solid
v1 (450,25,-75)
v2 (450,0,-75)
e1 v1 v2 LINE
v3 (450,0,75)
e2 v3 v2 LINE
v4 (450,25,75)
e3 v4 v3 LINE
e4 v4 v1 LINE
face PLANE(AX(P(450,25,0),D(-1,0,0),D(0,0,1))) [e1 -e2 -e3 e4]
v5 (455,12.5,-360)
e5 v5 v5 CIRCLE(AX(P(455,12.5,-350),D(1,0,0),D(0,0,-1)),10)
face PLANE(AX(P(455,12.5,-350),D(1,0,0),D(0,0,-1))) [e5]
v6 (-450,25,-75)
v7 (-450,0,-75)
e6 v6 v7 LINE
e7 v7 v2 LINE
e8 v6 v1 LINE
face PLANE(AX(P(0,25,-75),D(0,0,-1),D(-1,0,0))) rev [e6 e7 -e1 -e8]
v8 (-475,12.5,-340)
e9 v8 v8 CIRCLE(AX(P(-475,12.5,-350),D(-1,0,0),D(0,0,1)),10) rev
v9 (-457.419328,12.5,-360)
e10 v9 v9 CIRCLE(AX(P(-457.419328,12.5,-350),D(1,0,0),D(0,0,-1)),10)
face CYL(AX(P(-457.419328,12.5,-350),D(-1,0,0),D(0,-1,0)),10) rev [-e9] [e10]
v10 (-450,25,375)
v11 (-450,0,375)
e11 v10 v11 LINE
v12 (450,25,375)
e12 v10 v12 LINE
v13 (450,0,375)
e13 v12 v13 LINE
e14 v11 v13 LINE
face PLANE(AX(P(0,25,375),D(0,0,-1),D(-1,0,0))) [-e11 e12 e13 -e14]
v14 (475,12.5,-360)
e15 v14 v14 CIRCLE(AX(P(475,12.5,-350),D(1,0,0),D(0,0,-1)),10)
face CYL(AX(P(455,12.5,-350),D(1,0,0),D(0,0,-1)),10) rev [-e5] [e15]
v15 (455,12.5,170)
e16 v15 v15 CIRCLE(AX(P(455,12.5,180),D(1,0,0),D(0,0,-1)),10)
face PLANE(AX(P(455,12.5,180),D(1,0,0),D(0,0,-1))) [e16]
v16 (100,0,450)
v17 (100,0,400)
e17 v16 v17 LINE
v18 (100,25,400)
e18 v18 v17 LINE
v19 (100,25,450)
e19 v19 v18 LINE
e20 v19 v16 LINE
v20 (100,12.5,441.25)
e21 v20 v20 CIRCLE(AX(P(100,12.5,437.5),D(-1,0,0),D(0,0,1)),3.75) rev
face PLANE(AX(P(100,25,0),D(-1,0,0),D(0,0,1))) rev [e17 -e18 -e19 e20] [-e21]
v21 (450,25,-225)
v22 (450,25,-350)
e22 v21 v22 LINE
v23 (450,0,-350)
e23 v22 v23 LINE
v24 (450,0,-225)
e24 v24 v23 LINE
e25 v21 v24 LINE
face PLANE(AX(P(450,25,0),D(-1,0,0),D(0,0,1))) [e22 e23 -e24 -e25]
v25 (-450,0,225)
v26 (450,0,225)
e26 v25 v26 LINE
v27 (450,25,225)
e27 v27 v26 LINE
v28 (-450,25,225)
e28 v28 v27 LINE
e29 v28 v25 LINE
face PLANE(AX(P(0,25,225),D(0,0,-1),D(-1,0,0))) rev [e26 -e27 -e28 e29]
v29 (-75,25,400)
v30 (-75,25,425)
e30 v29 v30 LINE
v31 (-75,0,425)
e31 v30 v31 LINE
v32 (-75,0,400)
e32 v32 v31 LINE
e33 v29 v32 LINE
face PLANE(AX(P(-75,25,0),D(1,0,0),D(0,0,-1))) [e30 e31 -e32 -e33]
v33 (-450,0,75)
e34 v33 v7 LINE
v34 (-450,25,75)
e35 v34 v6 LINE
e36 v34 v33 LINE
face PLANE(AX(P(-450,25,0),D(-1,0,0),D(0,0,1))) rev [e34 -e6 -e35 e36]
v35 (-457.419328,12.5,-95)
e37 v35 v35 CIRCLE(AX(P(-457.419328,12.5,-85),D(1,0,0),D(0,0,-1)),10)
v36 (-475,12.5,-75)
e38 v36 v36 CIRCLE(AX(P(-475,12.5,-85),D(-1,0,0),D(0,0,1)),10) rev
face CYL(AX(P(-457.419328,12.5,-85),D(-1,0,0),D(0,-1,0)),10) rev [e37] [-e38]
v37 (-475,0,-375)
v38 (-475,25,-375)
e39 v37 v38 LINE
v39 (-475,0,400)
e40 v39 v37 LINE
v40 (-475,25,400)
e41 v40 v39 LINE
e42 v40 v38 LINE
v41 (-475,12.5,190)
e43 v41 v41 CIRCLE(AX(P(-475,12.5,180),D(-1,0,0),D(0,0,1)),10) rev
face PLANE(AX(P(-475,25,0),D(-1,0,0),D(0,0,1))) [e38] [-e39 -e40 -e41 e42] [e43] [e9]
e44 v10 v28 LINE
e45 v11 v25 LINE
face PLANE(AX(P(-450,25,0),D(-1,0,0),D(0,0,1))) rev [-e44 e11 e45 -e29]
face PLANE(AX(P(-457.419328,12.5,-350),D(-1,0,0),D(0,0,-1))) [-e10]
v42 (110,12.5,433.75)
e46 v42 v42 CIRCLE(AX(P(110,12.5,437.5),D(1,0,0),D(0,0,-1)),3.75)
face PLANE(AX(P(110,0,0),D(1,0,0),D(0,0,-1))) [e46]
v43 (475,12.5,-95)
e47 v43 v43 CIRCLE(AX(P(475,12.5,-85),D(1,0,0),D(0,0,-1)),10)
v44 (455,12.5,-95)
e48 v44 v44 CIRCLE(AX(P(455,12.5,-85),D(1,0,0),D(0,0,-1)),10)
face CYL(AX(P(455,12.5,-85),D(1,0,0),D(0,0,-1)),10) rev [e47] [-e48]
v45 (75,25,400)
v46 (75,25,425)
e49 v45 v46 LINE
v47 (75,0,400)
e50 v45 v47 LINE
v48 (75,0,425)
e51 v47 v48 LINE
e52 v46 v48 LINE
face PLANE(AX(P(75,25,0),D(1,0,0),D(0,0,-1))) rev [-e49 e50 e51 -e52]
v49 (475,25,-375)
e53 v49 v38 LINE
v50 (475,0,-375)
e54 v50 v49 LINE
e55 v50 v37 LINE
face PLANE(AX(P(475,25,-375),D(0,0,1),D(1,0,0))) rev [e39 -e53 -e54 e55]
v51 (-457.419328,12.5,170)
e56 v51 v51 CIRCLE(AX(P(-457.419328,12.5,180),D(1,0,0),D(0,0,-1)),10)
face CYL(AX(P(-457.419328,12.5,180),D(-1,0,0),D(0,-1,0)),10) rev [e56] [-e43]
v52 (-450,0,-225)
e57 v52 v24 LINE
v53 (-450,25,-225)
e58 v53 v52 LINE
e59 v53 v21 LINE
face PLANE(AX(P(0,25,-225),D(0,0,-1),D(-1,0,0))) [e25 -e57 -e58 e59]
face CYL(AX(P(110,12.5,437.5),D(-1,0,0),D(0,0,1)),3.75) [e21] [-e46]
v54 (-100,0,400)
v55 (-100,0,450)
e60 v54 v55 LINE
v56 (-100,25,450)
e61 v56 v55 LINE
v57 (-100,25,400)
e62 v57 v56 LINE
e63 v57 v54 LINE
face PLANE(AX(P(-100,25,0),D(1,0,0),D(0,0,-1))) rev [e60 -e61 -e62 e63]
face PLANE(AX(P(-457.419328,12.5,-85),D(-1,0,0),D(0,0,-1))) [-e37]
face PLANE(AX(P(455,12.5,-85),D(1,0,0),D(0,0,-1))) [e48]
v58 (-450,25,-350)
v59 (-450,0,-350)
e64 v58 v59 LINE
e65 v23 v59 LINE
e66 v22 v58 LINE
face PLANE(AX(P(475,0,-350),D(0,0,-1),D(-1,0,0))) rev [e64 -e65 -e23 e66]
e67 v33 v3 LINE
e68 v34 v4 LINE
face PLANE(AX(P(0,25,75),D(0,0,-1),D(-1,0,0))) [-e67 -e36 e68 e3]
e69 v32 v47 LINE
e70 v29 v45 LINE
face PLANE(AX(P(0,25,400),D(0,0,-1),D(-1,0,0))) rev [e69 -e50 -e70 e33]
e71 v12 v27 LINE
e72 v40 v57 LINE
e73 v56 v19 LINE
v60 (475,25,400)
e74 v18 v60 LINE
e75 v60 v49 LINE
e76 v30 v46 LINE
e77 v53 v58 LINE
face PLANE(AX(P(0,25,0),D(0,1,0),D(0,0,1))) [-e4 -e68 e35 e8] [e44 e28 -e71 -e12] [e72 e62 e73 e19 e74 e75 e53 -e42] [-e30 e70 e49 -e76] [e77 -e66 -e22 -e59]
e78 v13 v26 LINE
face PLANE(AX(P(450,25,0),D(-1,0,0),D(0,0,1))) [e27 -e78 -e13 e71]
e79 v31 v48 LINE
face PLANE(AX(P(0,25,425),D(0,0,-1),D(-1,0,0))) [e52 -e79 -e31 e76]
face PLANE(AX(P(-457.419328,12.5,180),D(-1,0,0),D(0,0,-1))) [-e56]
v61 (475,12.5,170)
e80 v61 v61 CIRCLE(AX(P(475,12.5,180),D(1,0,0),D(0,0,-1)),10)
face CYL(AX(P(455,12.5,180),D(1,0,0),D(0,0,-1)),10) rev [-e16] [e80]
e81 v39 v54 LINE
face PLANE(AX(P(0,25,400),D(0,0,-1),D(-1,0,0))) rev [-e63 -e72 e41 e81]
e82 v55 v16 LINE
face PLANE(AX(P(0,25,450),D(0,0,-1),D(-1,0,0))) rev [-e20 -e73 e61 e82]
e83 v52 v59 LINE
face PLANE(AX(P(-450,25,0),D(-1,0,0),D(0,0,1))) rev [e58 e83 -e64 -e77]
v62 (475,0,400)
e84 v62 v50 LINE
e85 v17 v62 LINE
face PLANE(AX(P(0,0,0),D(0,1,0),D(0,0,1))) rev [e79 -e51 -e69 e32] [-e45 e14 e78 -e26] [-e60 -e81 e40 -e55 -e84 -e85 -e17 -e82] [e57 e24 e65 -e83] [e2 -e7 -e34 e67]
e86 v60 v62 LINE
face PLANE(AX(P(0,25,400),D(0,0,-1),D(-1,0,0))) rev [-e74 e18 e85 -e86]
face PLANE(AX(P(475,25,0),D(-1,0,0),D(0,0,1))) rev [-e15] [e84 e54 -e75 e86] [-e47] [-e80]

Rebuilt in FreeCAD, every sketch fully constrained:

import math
import FreeCAD as App
import Part
import Sketcher
from FreeCAD import Vector
Q = App.Units.Quantity

doc = App.newDocument("Part")
params = doc.addObject("Spreadsheet::Sheet", "Params")
for row, (alias, value) in enumerate([
    ("sketch1_width", "200 mm"),
    ("sketch1_width2", "375 mm"),
    ("sketch1_width3", "150 mm"),
    ("sketch1_width4", "900 mm"),
    ("sketch1_height", "50 mm"),
    ("pad1_length", "25 mm"),
    ("sketch2_radius", "3.75 mm"),
    ("pad2_length", "10 mm"),
    ("sketch3_width", "25 mm"),
    ("sketch4_width", "25 mm"),
    ("sketch5_diameter", "20 mm"),
    ("pocket2_length", "20 mm"),
], start=1):
    params.set(f"A{row}", alias)
    params.set(f"B{row}", "=" + value)
    params.setAlias(f"B{row}", alias)

body = doc.addObject("PartDesign::Body", "Body")

sketch1 = doc.addObject("Sketcher::SketchObject", "Sketch")
body.addObject(sketch1)
sketch1.AttachmentSupport = (doc.XZ_Plane, [""])
sketch1.MapMode = "FlatFace"
sketch1.addGeometry([
    Part.LineSegment(Vector(-100, 450, 0), Vector(100, 450, 0)),
    Part.LineSegment(Vector(100, 450, 0), Vector(100, 400, 0)),
    Part.LineSegment(Vector(100, 400, 0), Vector(475, 400, 0)),
    Part.LineSegment(Vector(475, 400, 0), Vector(475, -400, 0)),
    Part.LineSegment(Vector(475, -400, 0), Vector(-475, -400, 0)),
    Part.LineSegment(Vector(-475, -400, 0), Vector(-475, 400, 0)),
    Part.LineSegment(Vector(-475, 400, 0), Vector(-100, 400, 0)),
    Part.LineSegment(Vector(-100, 400, 0), Vector(-100, 450, 0)),
    Part.LineSegment(Vector(75, 425, 0), Vector(-75, 425, 0)),
    Part.LineSegment(Vector(-75, 425, 0), Vector(-75, 400, 0)),
    Part.LineSegment(Vector(-75, 400, 0), Vector(75, 400, 0)),
    Part.LineSegment(Vector(75, 400, 0), Vector(75, 425, 0)),
    Part.LineSegment(Vector(450, 375, 0), Vector(-450, 375, 0)),
    Part.LineSegment(Vector(-450, 375, 0), Vector(-450, 225, 0)),
    Part.LineSegment(Vector(-450, 225, 0), Vector(450, 225, 0)),
    Part.LineSegment(Vector(450, 225, 0), Vector(450, 375, 0)),
    Part.LineSegment(Vector(450, 75, 0), Vector(-450, 75, 0)),
    Part.LineSegment(Vector(-450, 75, 0), Vector(-450, -75, 0)),
    Part.LineSegment(Vector(-450, -75, 0), Vector(450, -75, 0)),
    Part.LineSegment(Vector(450, -75, 0), Vector(450, 75, 0)),
    Part.LineSegment(Vector(450, -225, 0), Vector(-450, -225, 0)),
    Part.LineSegment(Vector(-450, -225, 0), Vector(-450, -375, 0)),
    Part.LineSegment(Vector(-450, -375, 0), Vector(450, -375, 0)),
    Part.LineSegment(Vector(450, -375, 0), Vector(450, -225, 0)),
], False)
sketch1.addConstraint([
    Sketcher.Constraint("Coincident", 0, 2, 1, 1),
    Sketcher.Constraint("Coincident", 1, 2, 2, 1),
    Sketcher.Constraint("Coincident", 2, 2, 3, 1),
    Sketcher.Constraint("Coincident", 3, 2, 4, 1),
    Sketcher.Constraint("Coincident", 4, 2, 5, 1),
    Sketcher.Constraint("Coincident", 5, 2, 6, 1),
    Sketcher.Constraint("Coincident", 6, 2, 7, 1),
    Sketcher.Constraint("Coincident", 7, 2, 0, 1),
    Sketcher.Constraint("Coincident", 8, 2, 9, 1),
    Sketcher.Constraint("Coincident", 9, 2, 10, 1),
    Sketcher.Constraint("Coincident", 10, 2, 11, 1),
    Sketcher.Constraint("Coincident", 11, 2, 8, 1),
    Sketcher.Constraint("Coincident", 12, 2, 13, 1),
    Sketcher.Constraint("Coincident", 13, 2, 14, 1),
    Sketcher.Constraint("Coincident", 14, 2, 15, 1),
    Sketcher.Constraint("Coincident", 15, 2, 12, 1),
    Sketcher.Constraint("Coincident", 16, 2, 17, 1),
    Sketcher.Constraint("Coincident", 17, 2, 18, 1),
    Sketcher.Constraint("Coincident", 18, 2, 19, 1),
    Sketcher.Constraint("Coincident", 19, 2, 16, 1),
    Sketcher.Constraint("Coincident", 20, 2, 21, 1),
    Sketcher.Constraint("Coincident", 21, 2, 22, 1),
    Sketcher.Constraint("Coincident", 22, 2, 23, 1),
    Sketcher.Constraint("Coincident", 23, 2, 20, 1),
    Sketcher.Constraint("Horizontal", 0),
    Sketcher.Constraint("Vertical", 1),
    Sketcher.Constraint("Horizontal", 2),
    Sketcher.Constraint("Vertical", 3),
    Sketcher.Constraint("Horizontal", 4),
    Sketcher.Constraint("Vertical", 5),
    Sketcher.Constraint("Horizontal", 6),
    Sketcher.Constraint("Vertical", 7),
    Sketcher.Constraint("Horizontal", 8),
    Sketcher.Constraint("Vertical", 9),
    Sketcher.Constraint("Horizontal", 10),
    Sketcher.Constraint("Vertical", 11),
    Sketcher.Constraint("Horizontal", 12),
    Sketcher.Constraint("Vertical", 13),
    Sketcher.Constraint("Horizontal", 14),
    Sketcher.Constraint("Vertical", 15),
    Sketcher.Constraint("Horizontal", 16),
    Sketcher.Constraint("Vertical", 17),
    Sketcher.Constraint("Horizontal", 18),
    Sketcher.Constraint("Vertical", 19),
    Sketcher.Constraint("Horizontal", 20),
    Sketcher.Constraint("Vertical", 21),
    Sketcher.Constraint("Horizontal", 22),
    Sketcher.Constraint("Vertical", 23),
    Sketcher.Constraint("Symmetric", 2, 2, 4, 2, -1, 1),
    Sketcher.Constraint("Symmetric", 16, 2, 18, 2, -1, 1),
    Sketcher.Constraint("Symmetric", 14, 2, 20, 2, -1, 1),
    Sketcher.Constraint("Symmetric", 12, 2, 22, 2, -1, 1),
    Sketcher.Constraint("Symmetric", 1, 2, 6, 2, -2),
    Sketcher.Constraint("Horizontal", 6, 2, 9, 2),
    Sketcher.Constraint("Vertical", 13, 2, 16, 2),
    Sketcher.Constraint("Vertical", 15, 2, 18, 2),
    Sketcher.Constraint("Equal", 10, 13),
    Sketcher.Constraint("Equal", 15, 17),
    Sketcher.Constraint("DistanceX", 0, 1, 0, 2, Q("200 mm")),
    Sketcher.Constraint("DistanceX", 2, 1, 2, 2, Q("375 mm")),
    Sketcher.Constraint("DistanceX", 8, 2, 8, 1, Q("150 mm")),
    Sketcher.Constraint("DistanceX", 12, 2, 12, 1, Q("900 mm")),
    Sketcher.Constraint("DistanceY", 1, 2, 1, 1, Q("50 mm")),
    Sketcher.Constraint("DistanceY", 3, 2, 3, 1, Q("800 mm")),
    Sketcher.Constraint("DistanceY", 9, 2, 9, 1, Q("25 mm")),
    Sketcher.Constraint("DistanceX", 8, 2, -1, 1, Q("75 mm")),
    Sketcher.Constraint("DistanceY", -1, 1, 12, 2, Q("375 mm")),
])
sketch1.setExpression("Constraints[58]", "Params.sketch1_width")
sketch1.setExpression("Constraints[59]", "Params.sketch1_width2")
sketch1.setExpression("Constraints[60]", "Params.sketch1_width3")
sketch1.setExpression("Constraints[61]", "Params.sketch1_width4")
sketch1.setExpression("Constraints[62]", "Params.sketch1_height")
pad1 = doc.addObject("PartDesign::Pad", "Pad")
body.addObject(pad1)
pad1.Profile = sketch1
pad1.setExpression("Length", "Params.pad1_length")
pad1.Reversed = True

sketch2 = doc.addObject("Sketcher::SketchObject", "Sketch001")
body.addObject(sketch2)
sketch2.AttachmentSupport = (doc.YZ_Plane, [""])
sketch2.MapMode = "FlatFace"
sketch2.AttachmentOffset = App.Placement(Vector(0, 0, 100), App.Rotation())
sketch2.addGeometry([
    Part.ArcOfCircle(Part.Circle(Vector(12.5, 437.5, 0), Vector(0, 0, 1), 3.8), math.radians(-90), math.radians(45)),
    Part.ArcOfCircle(Part.Circle(Vector(12.5, 437.5, 0), Vector(0, 0, 1), 3.7), math.radians(45), math.radians(225)),
    Part.ArcOfCircle(Part.Circle(Vector(12.5, 437.5, 0), Vector(0, 0, 1), 3.7), math.radians(-135), math.radians(-90)),
], False)
sketch2.addConstraint([
    Sketcher.Constraint("Tangent", 0, 2, 1, 1),
    Sketcher.Constraint("Tangent", 1, 2, 2, 1),
    Sketcher.Constraint("Tangent", 2, 2, 0, 1),
    Sketcher.Constraint("Vertical", 1, 3, 2, 2),
    Sketcher.Constraint("Radius", 0, Q("3.75 mm")),
    Sketcher.Constraint("DistanceX", -1, 1, 0, 3, Q("12.5 mm")),
    Sketcher.Constraint("DistanceY", -1, 1, 0, 3, Q("437.5 mm")),
    Sketcher.Constraint("DistanceX", 1, 2, 0, 2, Q("5.303301 mm")),
    Sketcher.Constraint("DistanceX", -1, 1, 0, 2, Q("15.15165 mm")),
])
sketch2.setExpression("Constraints[4]", "Params.sketch2_radius")
pad2 = doc.addObject("PartDesign::Pad", "Pad001")
body.addObject(pad2)
pad2.Profile = sketch2
pad2.setExpression("Length", "Params.pad2_length")

sketch3 = doc.addObject("Sketcher::SketchObject", "Sketch002")
body.addObject(sketch3)
sketch3.AttachmentSupport = (doc.YZ_Plane, [""])
sketch3.MapMode = "FlatFace"
sketch3.AttachmentOffset = App.Placement(Vector(0, 0, -450), App.Rotation())
sketch3.addGeometry([
    Part.LineSegment(Vector(25, -350, 0), Vector(0, -350, 0)),
    Part.LineSegment(Vector(0, -350, 0), Vector(0, -375, 0)),
    Part.LineSegment(Vector(0, -375, 0), Vector(25, -375, 0)),
    Part.LineSegment(Vector(25, -375, 0), Vector(25, -350, 0)),
], False)
sketch3.addConstraint([
    Sketcher.Constraint("Coincident", 0, 2, 1, 1),
    Sketcher.Constraint("Coincident", 1, 2, 2, 1),
    Sketcher.Constraint("Coincident", 2, 2, 3, 1),
    Sketcher.Constraint("Coincident", 3, 2, 0, 1),
    Sketcher.Constraint("Horizontal", 0),
    Sketcher.Constraint("Vertical", 1),
    Sketcher.Constraint("Horizontal", 2),
    Sketcher.Constraint("Vertical", 3),
    Sketcher.Constraint("PointOnObject", 0, 2, -2),
    Sketcher.Constraint("Equal", 2, 1),
    Sketcher.Constraint("DistanceX", 0, 2, 0, 1, Q("25 mm")),
    Sketcher.Constraint("DistanceY", 0, 2, -1, 1, Q("350 mm")),
])
sketch3.setExpression("Constraints[10]", "Params.sketch3_width")
pad3 = doc.addObject("PartDesign::Pad", "Pad002")
body.addObject(pad3)
pad3.Profile = sketch3
pad3.Type = "UpToFirst"

sketch4 = doc.addObject("Sketcher::SketchObject", "Sketch003")
body.addObject(sketch4)
sketch4.AttachmentSupport = (doc.YZ_Plane, [""])
sketch4.MapMode = "FlatFace"
sketch4.AttachmentOffset = App.Placement(Vector(0, 0, -475), App.Rotation())
sketch4.addGeometry([
    Part.LineSegment(Vector(25, -400, 0), Vector(0, -400, 0)),
    Part.LineSegment(Vector(0, -400, 0), Vector(0, -375, 0)),
    Part.LineSegment(Vector(0, -375, 0), Vector(25, -375, 0)),
    Part.LineSegment(Vector(25, -375, 0), Vector(25, -400, 0)),
], False)
sketch4.addConstraint([
    Sketcher.Constraint("Coincident", 0, 2, 1, 1),
    Sketcher.Constraint("Coincident", 1, 2, 2, 1),
    Sketcher.Constraint("Coincident", 2, 2, 3, 1),
    Sketcher.Constraint("Coincident", 3, 2, 0, 1),
    Sketcher.Constraint("Horizontal", 0),
    Sketcher.Constraint("Vertical", 1),
    Sketcher.Constraint("Horizontal", 2),
    Sketcher.Constraint("Vertical", 3),
    Sketcher.Constraint("PointOnObject", 0, 2, -2),
    Sketcher.Constraint("Equal", 2, 1),
    Sketcher.Constraint("DistanceX", 0, 2, 0, 1, Q("25 mm")),
    Sketcher.Constraint("DistanceY", 0, 2, -1, 1, Q("400 mm")),
])
sketch4.setExpression("Constraints[10]", "Params.sketch4_width")
pocket1 = doc.addObject("PartDesign::Pocket", "Pocket")
body.addObject(pocket1)
pocket1.Profile = sketch4
pocket1.Type = "ThroughAll"
pocket1.Reversed = True

sketch5 = doc.addObject("Sketcher::SketchObject", "Sketch004")
body.addObject(sketch5)
sketch5.AttachmentSupport = (doc.YZ_Plane, [""])
sketch5.MapMode = "FlatFace"
sketch5.AttachmentOffset = App.Placement(Vector(0, 0, 475), App.Rotation())
sketch5.addGeometry([
    Part.Circle(Vector(12, -350, 0), Vector(0, 0, 1), 10),
    Part.Circle(Vector(12, -85, 0), Vector(0, 0, 1), 10),
    Part.Circle(Vector(12, 180, 0), Vector(0, 0, 1), 10),
], False)
sketch5.addConstraint([
    Sketcher.Constraint("Equal", 0, 1),
    Sketcher.Constraint("Equal", 1, 2),
    Sketcher.Constraint("Vertical", 0, 3, 1, 3),
    Sketcher.Constraint("Vertical", 1, 3, 2, 3),
    Sketcher.Constraint("Diameter", 0, Q("20 mm")),
    Sketcher.Constraint("DistanceY", 0, 3, -1, 1, Q("350 mm")),
    Sketcher.Constraint("DistanceY", 1, 3, -1, 1, Q("85 mm")),
    Sketcher.Constraint("DistanceY", -1, 1, 2, 3, Q("180 mm")),
    Sketcher.Constraint("DistanceX", -1, 1, 0, 3, Q("12.5 mm")),
])
sketch5.setExpression("Constraints[4]", "Params.sketch5_diameter")
pocket2 = doc.addObject("PartDesign::Pocket", "Pocket001")
body.addObject(pocket2)
pocket2.Profile = sketch5
pocket2.setExpression("Length", "Params.pocket2_length")
doc.recompute()

datumplane = doc.addObject("PartDesign::Plane", "DatumPlane")
body.addObject(datumplane)
datumplane.AttachmentSupport = (doc.YZ_Plane, [""])
datumplane.MapMode = "FlatFace"
datumplane.AttachmentOffset = App.Placement(Vector(0, 0, -1.209664), App.Rotation())
mirrored = doc.addObject("PartDesign::Mirrored", "Mirrored")
body.addObject(mirrored)
mirrored.Originals = [pocket2]
mirrored.MirrorPlane = (datumplane, [""])
body.Tip = mirrored

doc.recompute()
